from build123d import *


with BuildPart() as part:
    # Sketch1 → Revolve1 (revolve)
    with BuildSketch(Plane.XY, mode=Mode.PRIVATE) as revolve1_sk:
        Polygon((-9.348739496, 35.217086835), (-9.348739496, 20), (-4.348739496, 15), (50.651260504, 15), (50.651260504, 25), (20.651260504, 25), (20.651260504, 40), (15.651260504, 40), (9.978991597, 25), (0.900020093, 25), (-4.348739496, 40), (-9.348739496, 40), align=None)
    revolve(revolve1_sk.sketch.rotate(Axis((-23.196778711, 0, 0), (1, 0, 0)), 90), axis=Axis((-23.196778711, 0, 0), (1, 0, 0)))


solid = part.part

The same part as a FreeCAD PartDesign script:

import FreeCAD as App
import Part
import Sketcher
Q = App.Units.Quantity

doc = App.newDocument("Part")
body = doc.addObject("PartDesign::Body", "Body")

# Sketch on XY plane
sketch1 = body.newObject("Sketcher::SketchObject", "Sketch")
sketch1.AttachmentSupport = (doc.getObject("XY_Plane"), [""])
sketch1.MapMode = "FlatFace"
sketch1.addGeometry([
    Part.LineSegment(App.Vector(-9, 20, 0), App.Vector(-4, 15, 0)),  # 0
    Part.LineSegment(App.Vector(-4, 15, 0), App.Vector(51, 15, 0)),  # 1
    Part.LineSegment(App.Vector(51, 15, 0), App.Vector(51, 25, 0)),  # 2
    Part.LineSegment(App.Vector(51, 25, 0), App.Vector(21, 25, 0)),  # 3
    Part.LineSegment(App.Vector(21, 25, 0), App.Vector(21, 40, 0)),  # 4
    Part.LineSegment(App.Vector(21, 40, 0), App.Vector(16, 40, 0)),  # 5
    Part.LineSegment(App.Vector(16, 40, 0), App.Vector(10, 25, 0)),  # 6
    Part.LineSegment(App.Vector(10, 25, 0), App.Vector(1, 25, 0)),  # 7
    Part.LineSegment(App.Vector(1, 25, 0), App.Vector(-4, 40, 0)),  # 8
    Part.LineSegment(App.Vector(-4, 40, 0), App.Vector(-9, 40, 0)),  # 9
    Part.LineSegment(App.Vector(-9, 40, 0), App.Vector(-9, 20, 0)),  # 10
], False)
sketch1.addConstraint([
    Sketcher.Constraint("Coincident", 0, 2, 1, 1),
    Sketcher.Constraint("Coincident", 1, 2, 2, 1),
    Sketcher.Constraint("Coincident", 2, 2, 3, 1),
    Sketcher.Constraint("Coincident", 3, 2, 4, 1),
    Sketcher.Constraint("Coincident", 4, 2, 5, 1),
    Sketcher.Constraint("Coincident", 5, 2, 6, 1),
    Sketcher.Constraint("Coincident", 6, 2, 7, 1),
    Sketcher.Constraint("Coincident", 7, 2, 8, 1),
    Sketcher.Constraint("Coincident", 8, 2, 9, 1),
    Sketcher.Constraint("Coincident", 9, 2, 10, 1),
    Sketcher.Constraint("Coincident", 10, 2, 0, 1),
    Sketcher.Constraint("Horizontal", 1),
    Sketcher.Constraint("Vertical", 2),
    Sketcher.Constraint("Horizontal", 3),
    Sketcher.Constraint("Vertical", 4),
    Sketcher.Constraint("Horizontal", 5),
    Sketcher.Constraint("Horizontal", 7),
    Sketcher.Constraint("Horizontal", 9),
    Sketcher.Constraint("Vertical", 10),
    Sketcher.Constraint("Horizontal", 3, 2, 6, 2),
    Sketcher.Constraint("Horizontal", 5, 2, 8, 2),
    Sketcher.Constraint("Vertical", 0, 2, 8, 2),
    Sketcher.Constraint("Equal", 5, 9),
    Sketcher.Constraint("DistanceX", 1, 1, 1, 2, Q("55 mm")),
    Sketcher.Constraint("DistanceX", 3, 2, 3, 1, Q("30 mm")),
    Sketcher.Constraint("DistanceX", 5, 2, 5, 1, Q("5 mm")),
    Sketcher.Constraint("DistanceY", 2, 1, 2, 2, Q("10 mm")),
    Sketcher.Constraint("DistanceY", 4, 1, 4, 2, Q("15 mm")),
    Sketcher.Constraint("DistanceY", 10, 2, 10, 1, Q("20 mm")),
    Sketcher.Constraint("DistanceY", -1, 1, 0, 2, Q("15 mm")),
    Sketcher.Constraint("DistanceX", 7, 2, 7, 1, Q("9.078972 mm")),
    Sketcher.Constraint("DistanceX", 0, 2, -1, 1, Q("4.348739 mm")),
    Sketcher.Constraint("DistanceX", -1, 1, 6, 2, Q("9.978992 mm")),
])
revolution = body.newObject("PartDesign::Revolution", "Revolution")
revolution.Profile = sketch1
revolution.ReferenceAxis = (sketch1, ["H_Axis"])
revolution.Angle = 360

doc.recompute()
